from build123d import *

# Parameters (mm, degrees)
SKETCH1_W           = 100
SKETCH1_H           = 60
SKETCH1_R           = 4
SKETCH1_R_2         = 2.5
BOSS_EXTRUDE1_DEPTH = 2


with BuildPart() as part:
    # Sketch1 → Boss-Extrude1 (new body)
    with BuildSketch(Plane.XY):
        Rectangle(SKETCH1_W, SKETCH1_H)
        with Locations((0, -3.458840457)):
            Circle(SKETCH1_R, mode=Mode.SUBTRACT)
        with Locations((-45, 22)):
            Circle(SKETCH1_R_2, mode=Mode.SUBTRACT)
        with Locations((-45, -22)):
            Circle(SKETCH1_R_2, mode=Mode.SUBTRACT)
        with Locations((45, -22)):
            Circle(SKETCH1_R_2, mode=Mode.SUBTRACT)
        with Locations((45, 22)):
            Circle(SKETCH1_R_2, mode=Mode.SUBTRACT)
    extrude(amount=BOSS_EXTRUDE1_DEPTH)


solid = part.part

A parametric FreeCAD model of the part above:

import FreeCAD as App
import Part
import Sketcher


def add_polygon(sketch, points):
    """Adds a closed chain of lines whose ends are joined by coincident constraints."""
    first, n = sketch.GeometryCount, len(points)
    for a, b in zip(points, points[1:] + points[:1]):
        sketch.addGeometry(Part.LineSegment(App.Vector(*a, 0), App.Vector(*b, 0)), False)
    for i in range(n):
        sketch.addConstraint(Sketcher.Constraint("Coincident", first + i, 2, first + (i + 1) % n, 1))

doc = App.newDocument("Part")
body = doc.addObject("PartDesign::Body", "Body")

sketch1 = body.newObject("Sketcher::SketchObject", "Sketch")
sketch1.AttachmentSupport = (doc.getObject("XY_Plane"), [""])
sketch1.MapMode = "FlatFace"
add_polygon(sketch1, [(-50, 30), (-50, -30), (50, -30), (50, 30)])
sketch1.addGeometry(Part.Circle(App.Vector(-45, -22, 0), App.Vector(0, 0, 1), 2.5), False)
sketch1.addGeometry(Part.Circle(App.Vector(45, -22, 0), App.Vector(0, 0, 1), 2.5), False)
sketch1.addGeometry(Part.Circle(App.Vector(0, -3.5, 0), App.Vector(0, 0, 1), 4), False)
sketch1.addGeometry(Part.Circle(App.Vector(-45, 22, 0), App.Vector(0, 0, 1), 2.5), False)
sketch1.addGeometry(Part.Circle(App.Vector(45, 22, 0), App.Vector(0, 0, 1), 2.5), False)
sketch1.addConstraint([
    Sketcher.Constraint("Vertical", 0),
    Sketcher.Constraint("Horizontal", 1),
    Sketcher.Constraint("Vertical", 2),
    Sketcher.Constraint("Horizontal", 3),
    Sketcher.Constraint("Equal", 4, 5),
    Sketcher.Constraint("Equal", 5, 7),
    Sketcher.Constraint("Equal", 7, 8),
    Sketcher.Constraint("Symmetric", 5, 3, 7, 3, -1, 1),
    Sketcher.Constraint("Symmetric", 4, 3, 8, 3, -1, 1),
    Sketcher.Constraint("Symmetric", 0, 2, 2, 2, -1, 1),
    Sketcher.Constraint("Symmetric", 4, 3, 5, 3, -2),
    Sketcher.Constraint("PointOnObject", 6, 3, -2),
    Sketcher.Constraint("Diameter", 4, 5.0),
    Sketcher.Constraint("Diameter", 6, 8.0),
    Sketcher.Constraint("DistanceX", 1, 1, 1, 2, 100.0),
    Sketcher.Constraint("DistanceY", 0, 2, 0, 1, 60.0),
    Sketcher.Constraint("DistanceX", 4, 3, -1, 1, 45.0),
    Sketcher.Constraint("DistanceY", 4, 3, -1, 1, 22.0),
    Sketcher.Constraint("DistanceY", 6, 3, -1, 1, 3.45884),
])
pad1 = body.newObject("PartDesign::Pad", "Pad")
pad1.Profile = sketch1
pad1.Length = 2

doc.recompute()
